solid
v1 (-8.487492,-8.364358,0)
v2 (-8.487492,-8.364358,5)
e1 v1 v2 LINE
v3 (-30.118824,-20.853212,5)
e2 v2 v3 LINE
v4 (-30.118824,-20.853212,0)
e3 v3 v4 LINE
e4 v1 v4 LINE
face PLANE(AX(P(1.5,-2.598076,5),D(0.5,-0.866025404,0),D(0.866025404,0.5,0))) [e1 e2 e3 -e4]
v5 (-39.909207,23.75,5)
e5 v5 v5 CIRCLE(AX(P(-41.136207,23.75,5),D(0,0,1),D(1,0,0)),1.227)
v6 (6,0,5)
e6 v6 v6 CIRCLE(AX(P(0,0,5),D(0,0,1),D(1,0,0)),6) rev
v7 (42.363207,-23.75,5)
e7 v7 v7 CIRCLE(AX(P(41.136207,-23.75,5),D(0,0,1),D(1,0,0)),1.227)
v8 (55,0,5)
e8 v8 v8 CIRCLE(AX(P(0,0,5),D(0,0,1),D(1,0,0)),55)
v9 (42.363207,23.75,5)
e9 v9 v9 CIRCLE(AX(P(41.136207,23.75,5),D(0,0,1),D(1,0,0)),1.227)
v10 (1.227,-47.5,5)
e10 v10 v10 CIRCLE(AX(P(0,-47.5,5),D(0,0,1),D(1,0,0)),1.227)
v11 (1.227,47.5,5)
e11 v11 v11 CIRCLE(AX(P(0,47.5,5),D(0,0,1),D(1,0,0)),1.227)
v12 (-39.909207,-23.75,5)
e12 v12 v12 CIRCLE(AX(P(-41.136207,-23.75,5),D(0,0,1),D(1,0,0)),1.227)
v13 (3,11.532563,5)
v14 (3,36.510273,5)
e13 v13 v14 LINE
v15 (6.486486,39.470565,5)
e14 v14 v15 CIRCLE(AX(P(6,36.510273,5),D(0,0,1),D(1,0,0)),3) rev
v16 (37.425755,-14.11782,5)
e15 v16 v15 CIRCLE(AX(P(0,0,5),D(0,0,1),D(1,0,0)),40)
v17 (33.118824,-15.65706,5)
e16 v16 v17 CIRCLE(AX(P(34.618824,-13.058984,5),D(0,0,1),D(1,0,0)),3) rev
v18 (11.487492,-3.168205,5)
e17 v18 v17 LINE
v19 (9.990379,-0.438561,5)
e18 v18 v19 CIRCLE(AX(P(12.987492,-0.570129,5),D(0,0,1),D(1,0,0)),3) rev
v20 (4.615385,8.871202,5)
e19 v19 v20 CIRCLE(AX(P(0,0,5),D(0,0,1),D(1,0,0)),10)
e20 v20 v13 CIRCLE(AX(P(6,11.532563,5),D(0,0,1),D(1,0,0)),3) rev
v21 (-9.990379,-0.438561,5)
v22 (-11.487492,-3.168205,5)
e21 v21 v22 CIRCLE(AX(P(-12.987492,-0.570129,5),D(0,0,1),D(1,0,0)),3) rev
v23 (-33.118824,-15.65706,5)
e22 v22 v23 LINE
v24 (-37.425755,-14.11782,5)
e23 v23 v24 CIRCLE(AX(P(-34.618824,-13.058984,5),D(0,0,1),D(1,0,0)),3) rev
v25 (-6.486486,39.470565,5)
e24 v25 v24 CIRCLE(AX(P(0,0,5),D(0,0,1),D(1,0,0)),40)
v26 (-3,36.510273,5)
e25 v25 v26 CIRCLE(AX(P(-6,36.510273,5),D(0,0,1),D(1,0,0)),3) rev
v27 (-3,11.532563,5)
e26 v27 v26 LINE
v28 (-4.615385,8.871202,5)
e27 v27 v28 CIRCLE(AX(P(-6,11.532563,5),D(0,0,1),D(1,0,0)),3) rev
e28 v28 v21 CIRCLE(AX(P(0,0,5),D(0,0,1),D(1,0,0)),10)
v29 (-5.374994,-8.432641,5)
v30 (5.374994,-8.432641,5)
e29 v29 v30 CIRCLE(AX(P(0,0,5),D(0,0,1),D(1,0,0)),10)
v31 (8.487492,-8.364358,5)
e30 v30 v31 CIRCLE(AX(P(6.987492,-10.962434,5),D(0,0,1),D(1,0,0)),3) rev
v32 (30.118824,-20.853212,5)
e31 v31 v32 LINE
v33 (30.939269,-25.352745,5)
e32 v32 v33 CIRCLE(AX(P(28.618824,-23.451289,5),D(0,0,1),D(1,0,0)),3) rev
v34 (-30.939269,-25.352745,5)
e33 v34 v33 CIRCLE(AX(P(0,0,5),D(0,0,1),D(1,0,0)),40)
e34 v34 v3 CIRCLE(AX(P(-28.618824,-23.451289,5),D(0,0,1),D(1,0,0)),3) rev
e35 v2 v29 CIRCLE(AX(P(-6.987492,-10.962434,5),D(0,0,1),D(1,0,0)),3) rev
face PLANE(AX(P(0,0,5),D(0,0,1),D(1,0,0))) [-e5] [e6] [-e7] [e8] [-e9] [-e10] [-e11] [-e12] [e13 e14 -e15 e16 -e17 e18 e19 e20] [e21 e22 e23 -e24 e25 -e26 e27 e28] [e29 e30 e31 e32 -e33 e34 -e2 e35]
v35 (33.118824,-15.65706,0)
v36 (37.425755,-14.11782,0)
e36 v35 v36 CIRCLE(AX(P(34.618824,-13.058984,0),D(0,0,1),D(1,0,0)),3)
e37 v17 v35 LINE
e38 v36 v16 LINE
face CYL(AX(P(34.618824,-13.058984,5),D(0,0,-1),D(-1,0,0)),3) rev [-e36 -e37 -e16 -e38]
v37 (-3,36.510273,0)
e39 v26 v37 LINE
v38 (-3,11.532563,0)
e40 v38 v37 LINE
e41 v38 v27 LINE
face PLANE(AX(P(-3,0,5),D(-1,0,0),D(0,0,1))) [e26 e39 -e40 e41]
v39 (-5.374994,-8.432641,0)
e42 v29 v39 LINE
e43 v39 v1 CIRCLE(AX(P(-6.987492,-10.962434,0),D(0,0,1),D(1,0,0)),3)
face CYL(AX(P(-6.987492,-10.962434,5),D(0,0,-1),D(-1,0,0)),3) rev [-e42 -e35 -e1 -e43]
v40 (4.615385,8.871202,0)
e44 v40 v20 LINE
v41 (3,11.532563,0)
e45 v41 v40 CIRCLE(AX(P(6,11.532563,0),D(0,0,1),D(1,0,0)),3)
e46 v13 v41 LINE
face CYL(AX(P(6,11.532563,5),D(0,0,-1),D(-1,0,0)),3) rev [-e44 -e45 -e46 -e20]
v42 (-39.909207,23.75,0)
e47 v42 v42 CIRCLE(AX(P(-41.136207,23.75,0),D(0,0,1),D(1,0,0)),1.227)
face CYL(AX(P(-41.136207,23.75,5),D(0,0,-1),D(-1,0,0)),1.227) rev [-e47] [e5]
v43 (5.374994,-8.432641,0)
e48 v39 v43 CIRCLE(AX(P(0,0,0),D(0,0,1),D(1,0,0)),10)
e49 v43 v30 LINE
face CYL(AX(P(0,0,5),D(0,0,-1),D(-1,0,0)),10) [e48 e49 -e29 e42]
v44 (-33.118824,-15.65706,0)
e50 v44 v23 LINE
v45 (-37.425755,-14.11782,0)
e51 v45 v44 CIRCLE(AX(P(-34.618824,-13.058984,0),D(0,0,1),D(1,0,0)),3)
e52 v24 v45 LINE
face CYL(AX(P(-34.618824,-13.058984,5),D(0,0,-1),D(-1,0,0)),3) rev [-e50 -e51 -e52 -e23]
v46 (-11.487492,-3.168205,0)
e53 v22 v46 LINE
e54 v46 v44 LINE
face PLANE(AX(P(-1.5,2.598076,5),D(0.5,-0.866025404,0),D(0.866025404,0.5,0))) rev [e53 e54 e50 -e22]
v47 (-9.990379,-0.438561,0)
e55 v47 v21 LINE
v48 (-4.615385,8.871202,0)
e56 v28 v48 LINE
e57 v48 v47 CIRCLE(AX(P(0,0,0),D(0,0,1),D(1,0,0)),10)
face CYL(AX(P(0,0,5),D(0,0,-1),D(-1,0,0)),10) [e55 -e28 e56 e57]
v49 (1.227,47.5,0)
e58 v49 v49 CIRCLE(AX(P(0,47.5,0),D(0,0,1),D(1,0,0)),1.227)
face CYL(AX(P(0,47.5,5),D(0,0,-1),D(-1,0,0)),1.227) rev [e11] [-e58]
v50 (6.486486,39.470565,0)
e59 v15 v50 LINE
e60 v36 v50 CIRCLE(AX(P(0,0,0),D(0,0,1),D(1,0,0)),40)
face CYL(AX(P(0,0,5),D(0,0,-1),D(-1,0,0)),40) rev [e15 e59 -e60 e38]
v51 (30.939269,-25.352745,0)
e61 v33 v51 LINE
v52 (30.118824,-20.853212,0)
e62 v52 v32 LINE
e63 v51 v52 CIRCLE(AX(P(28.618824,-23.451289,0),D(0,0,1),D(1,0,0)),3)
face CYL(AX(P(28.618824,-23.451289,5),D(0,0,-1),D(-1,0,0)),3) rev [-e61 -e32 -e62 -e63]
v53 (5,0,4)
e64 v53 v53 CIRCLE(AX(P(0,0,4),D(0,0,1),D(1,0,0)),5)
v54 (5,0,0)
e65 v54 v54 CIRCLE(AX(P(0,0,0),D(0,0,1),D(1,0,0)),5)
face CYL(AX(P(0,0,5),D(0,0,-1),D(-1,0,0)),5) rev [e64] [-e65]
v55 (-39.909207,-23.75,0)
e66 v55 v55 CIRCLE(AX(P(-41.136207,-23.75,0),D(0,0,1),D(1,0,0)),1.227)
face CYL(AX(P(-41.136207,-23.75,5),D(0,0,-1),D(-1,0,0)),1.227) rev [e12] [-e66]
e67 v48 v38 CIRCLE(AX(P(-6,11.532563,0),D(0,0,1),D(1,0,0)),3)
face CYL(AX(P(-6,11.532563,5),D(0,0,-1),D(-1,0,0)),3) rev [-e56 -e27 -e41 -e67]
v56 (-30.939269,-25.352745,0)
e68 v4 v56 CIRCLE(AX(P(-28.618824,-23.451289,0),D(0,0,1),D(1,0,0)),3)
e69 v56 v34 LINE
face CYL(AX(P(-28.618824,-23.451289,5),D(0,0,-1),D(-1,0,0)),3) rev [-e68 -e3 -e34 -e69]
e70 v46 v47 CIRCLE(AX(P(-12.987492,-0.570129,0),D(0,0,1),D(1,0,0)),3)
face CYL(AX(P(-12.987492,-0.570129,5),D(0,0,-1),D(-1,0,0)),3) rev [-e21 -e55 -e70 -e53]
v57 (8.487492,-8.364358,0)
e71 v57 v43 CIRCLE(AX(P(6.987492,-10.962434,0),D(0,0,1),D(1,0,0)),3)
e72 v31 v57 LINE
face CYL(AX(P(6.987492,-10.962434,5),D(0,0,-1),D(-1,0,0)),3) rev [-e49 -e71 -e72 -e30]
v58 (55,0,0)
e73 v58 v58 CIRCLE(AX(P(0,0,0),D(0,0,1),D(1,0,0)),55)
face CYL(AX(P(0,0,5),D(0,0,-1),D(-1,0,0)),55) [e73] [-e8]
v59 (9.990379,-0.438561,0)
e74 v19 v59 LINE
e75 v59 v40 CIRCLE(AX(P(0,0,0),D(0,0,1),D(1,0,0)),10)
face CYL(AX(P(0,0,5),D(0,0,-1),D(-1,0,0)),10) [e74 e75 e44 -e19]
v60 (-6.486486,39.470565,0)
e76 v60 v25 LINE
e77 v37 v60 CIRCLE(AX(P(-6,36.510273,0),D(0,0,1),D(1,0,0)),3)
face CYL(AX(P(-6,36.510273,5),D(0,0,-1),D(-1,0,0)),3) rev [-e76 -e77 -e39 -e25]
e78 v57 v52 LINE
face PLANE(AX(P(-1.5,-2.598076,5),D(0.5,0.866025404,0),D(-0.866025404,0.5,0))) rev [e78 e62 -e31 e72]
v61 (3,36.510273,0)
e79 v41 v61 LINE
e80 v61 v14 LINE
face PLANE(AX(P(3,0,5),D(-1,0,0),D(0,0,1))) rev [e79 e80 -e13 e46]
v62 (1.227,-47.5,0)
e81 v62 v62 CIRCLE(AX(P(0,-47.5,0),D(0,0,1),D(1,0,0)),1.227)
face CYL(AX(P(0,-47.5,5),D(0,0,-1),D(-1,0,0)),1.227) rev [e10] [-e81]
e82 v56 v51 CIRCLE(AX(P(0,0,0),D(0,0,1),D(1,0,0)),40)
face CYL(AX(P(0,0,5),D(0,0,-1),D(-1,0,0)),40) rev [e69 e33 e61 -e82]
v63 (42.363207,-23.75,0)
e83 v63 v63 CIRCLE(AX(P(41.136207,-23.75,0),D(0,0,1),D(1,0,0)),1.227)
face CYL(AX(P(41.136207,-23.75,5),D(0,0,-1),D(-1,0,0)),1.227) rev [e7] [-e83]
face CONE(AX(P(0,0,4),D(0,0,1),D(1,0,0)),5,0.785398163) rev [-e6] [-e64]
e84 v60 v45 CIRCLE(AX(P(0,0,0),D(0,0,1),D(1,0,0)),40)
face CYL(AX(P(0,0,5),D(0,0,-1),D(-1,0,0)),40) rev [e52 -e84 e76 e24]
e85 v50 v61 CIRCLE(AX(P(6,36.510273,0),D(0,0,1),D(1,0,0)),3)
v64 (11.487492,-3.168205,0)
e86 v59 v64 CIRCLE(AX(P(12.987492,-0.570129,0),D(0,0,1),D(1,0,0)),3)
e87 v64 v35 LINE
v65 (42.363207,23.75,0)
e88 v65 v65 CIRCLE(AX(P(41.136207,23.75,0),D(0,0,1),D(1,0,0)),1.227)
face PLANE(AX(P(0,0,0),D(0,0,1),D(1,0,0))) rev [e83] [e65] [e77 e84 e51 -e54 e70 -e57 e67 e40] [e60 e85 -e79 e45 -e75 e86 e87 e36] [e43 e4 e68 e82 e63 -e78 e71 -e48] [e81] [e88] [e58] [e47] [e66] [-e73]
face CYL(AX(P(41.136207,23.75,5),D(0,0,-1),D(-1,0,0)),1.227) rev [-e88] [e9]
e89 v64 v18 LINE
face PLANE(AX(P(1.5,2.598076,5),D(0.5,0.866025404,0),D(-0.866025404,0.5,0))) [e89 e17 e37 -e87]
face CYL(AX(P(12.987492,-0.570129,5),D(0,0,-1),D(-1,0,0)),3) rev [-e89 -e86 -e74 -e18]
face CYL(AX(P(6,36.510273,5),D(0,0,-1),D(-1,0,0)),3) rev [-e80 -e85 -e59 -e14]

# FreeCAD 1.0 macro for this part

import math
import FreeCAD as App
import Part
import Sketcher

V = App.Vector
Q = App.Units.Quantity


def edges_at(feature, points):
    """Names of the edges that pass closest to the given points."""
    edges = feature.Shape.Edges
    near = lambda p: min(range(len(edges)), key=lambda i: edges[i].distToShape(Part.Vertex(*p))[0])
    return sorted({f"Edge{near(p) + 1}" for p in points})

doc = App.newDocument("Part")
body = doc.addObject("PartDesign::Body", "Body")

sketch1 = body.newObject("Sketcher::SketchObject", "Sketch")
sketch1.AttachmentSupport = (doc.getObject("XY_Plane"), [""])
sketch1.MapMode = "FlatFace"
sketch1.addGeometry(Part.Circle(V(0, 0, 0), V(0, 0, 1), 55), False)
sketch1.addGeometry(Part.Circle(V(0, -47.5, 0), V(0, 0, 1), 1.2), False)
sketch1.addGeometry(Part.Circle(V(-41.1, -23.8, 0), V(0, 0, 1), 1.2), False)
sketch1.addGeometry(Part.ArcOfCircle(Part.Circle(V(0, 0, 0), V(0, 0, 1), 40), math.radians(-146), math.radians(-34)), False)
sketch1.addGeometry(Part.LineSegment(V(-33, -22.5, 0), V(-6.8, -7.4, 0)), False)
sketch1.addGeometry(Part.ArcOfCircle(Part.Circle(V(0, 0, 0), V(0, 0, 1), 10), math.radians(-133), math.radians(-47)), False)
sketch1.addGeometry(Part.LineSegment(V(6.8, -7.4, 0), V(33, -22.5, 0)), False)
sketch1.addGeometry(Part.Circle(V(41.1, -23.8, 0), V(0, 0, 1), 1.2), False)
sketch1.addGeometry(Part.LineSegment(V(-3, 39.9, 0), V(-3, 9.5, 0)), False)
sketch1.addGeometry(Part.ArcOfCircle(Part.Circle(V(0, 0, 0), V(0, 0, 1), 10), math.radians(107), math.radians(193)), False)
sketch1.addGeometry(Part.LineSegment(V(-9.8, -2.2, 0), V(-36, -17.3, 0)), False)
sketch1.addGeometry(Part.ArcOfCircle(Part.Circle(V(0, 0, 0), V(0, 0, 1), 40), math.radians(94), math.radians(206)), False)
sketch1.addGeometry(Part.Circle(V(-41.1, 23.8, 0), V(0, 0, 1), 1.2), False)
sketch1.addGeometry(Part.Circle(V(0, 47.5, 0), V(0, 0, 1), 1.2), False)
sketch1.addGeometry(Part.Circle(V(0, 0, 0), V(0, 0, 1), 5), False)
sketch1.addGeometry(Part.ArcOfCircle(Part.Circle(V(0, 0, 0), V(0, 0, 1), 40), math.radians(-26), math.radians(86)), False)
sketch1.addGeometry(Part.LineSegment(V(36, -17.3, 0), V(9.8, -2.2, 0)), False)
sketch1.addGeometry(Part.ArcOfCircle(Part.Circle(V(0, 0, 0), V(0, 0, 1), 10), math.radians(-13), math.radians(73)), False)
sketch1.addGeometry(Part.LineSegment(V(3, 9.5, 0), V(3, 39.9, 0)), False)
sketch1.addGeometry(Part.Circle(V(41.1, 23.8, 0), V(0, 0, 1), 1.2), False)
sketch1.addConstraint(Sketcher.Constraint("Coincident", 3, 1, 4, 1))
sketch1.addConstraint(Sketcher.Constraint("Coincident", 4, 2, 5, 1))
sketch1.addConstraint(Sketcher.Constraint("Coincident", 5, 2, 6, 1))
sketch1.addConstraint(Sketcher.Constraint("Coincident", 6, 2, 3, 2))
sketch1.addConstraint(Sketcher.Constraint("Coincident", 8, 2, 9, 1))
sketch1.addConstraint(Sketcher.Constraint("Coincident", 9, 2, 10, 1))
sketch1.addConstraint(Sketcher.Constraint("Coincident", 10, 2, 11, 2))
sketch1.addConstraint(Sketcher.Constraint("Coincident", 11, 1, 8, 1))
sketch1.addConstraint(Sketcher.Constraint("Coincident", 15, 1, 16, 1))
sketch1.addConstraint(Sketcher.Constraint("Coincident", 16, 2, 17, 1))
sketch1.addConstraint(Sketcher.Constraint("Coincident", 17, 2, 18, 1))
sketch1.addConstraint(Sketcher.Constraint("Coincident", 18, 2, 15, 2))
sketch1.addConstraint(Sketcher.Constraint("Vertical", 8))
sketch1.addConstraint(Sketcher.Constraint("Vertical", 18))
sketch1.addConstraint(Sketcher.Constraint("Coincident", 0, 3, -1, 1))
sketch1.addConstraint(Sketcher.Constraint("Coincident", 3, 3, -1, 1))
sketch1.addConstraint(Sketcher.Constraint("Coincident", 5, 3, -1, 1))
sketch1.addConstraint(Sketcher.Constraint("Coincident", 9, 3, -1, 1))
sketch1.addConstraint(Sketcher.Constraint("Coincident", 11, 3, -1, 1))
sketch1.addConstraint(Sketcher.Constraint("Coincident", 14, 3, -1, 1))
sketch1.addConstraint(Sketcher.Constraint("Coincident", 15, 3, -1, 1))
sketch1.addConstraint(Sketcher.Constraint("Coincident", 17, 3, -1, 1))
sketch1.addConstraint(Sketcher.Constraint("Equal", 1, 2))
sketch1.addConstraint(Sketcher.Constraint("Equal", 2, 7))
sketch1.addConstraint(Sketcher.Constraint("Equal", 5, 9))
sketch1.addConstraint(Sketcher.Constraint("Equal", 3, 11))
sketch1.addConstraint(Sketcher.Constraint("Equal", 7, 12))
sketch1.addConstraint(Sketcher.Constraint("Equal", 12, 13))
sketch1.addConstraint(Sketcher.Constraint("Equal", 11, 15))
sketch1.addConstraint(Sketcher.Constraint("Equal", 9, 17))
sketch1.addConstraint(Sketcher.Constraint("Equal", 13, 19))
sketch1.addConstraint(Sketcher.Constraint("Symmetric", 7, 3, 12, 3, -1, 1))
sketch1.addConstraint(Sketcher.Constraint("Symmetric", 1, 3, 13, 3, -1, 1))
sketch1.addConstraint(Sketcher.Constraint("Symmetric", 2, 3, 19, 3, -1, 1))
sketch1.addConstraint(Sketcher.Constraint("Symmetric", 2, 3, 7, 3, -2))
sketch1.addConstraint(Sketcher.Constraint("PointOnObject", 1, 3, -2))
sketch1.addConstraint(Sketcher.Constraint("Parallel", 4, 10))
sketch1.addConstraint(Sketcher.Constraint("Parallel", 6, 16))
sketch1.addConstraint(Sketcher.Constraint("Horizontal", 4, 2, 5, 2))
sketch1.addConstraint(Sketcher.Constraint("Horizontal", 3, 1, 6, 2))
sketch1.addConstraint(Sketcher.Constraint("Horizontal", 10, 2, 15, 1))
sketch1.addConstraint(Sketcher.Constraint("Horizontal", 8, 2, 17, 2))
sketch1.addConstraint(Sketcher.Constraint("Equal", 6, 10))
sketch1.addConstraint(Sketcher.Constraint("Diameter", 0, Q("110 mm")))
sketch1.addConstraint(Sketcher.Constraint("Diameter", 14, Q("10 mm")))
sketch1.addConstraint(Sketcher.Constraint("Radius", 3, Q("40 mm")))
sketch1.addConstraint(Sketcher.Constraint("Radius", 5, Q("10 mm")))
sketch1.addConstraint(Sketcher.Constraint("Angle", 4, Q("30 deg")))
sketch1.addConstraint(Sketcher.Constraint("Diameter", 1, Q("2.454 mm")))
sketch1.addConstraint(Sketcher.Constraint("DistanceX", 8, 2, -1, 1, Q("3 mm")))
sketch1.addConstraint(Sketcher.Constraint("DistanceX", 9, 2, 4, 2, Q("3 mm")))
sketch1.addConstraint(Sketcher.Constraint("DistanceY", 1, 3, -1, 1, Q("47.5 mm")))
sketch1.addConstraint(Sketcher.Constraint("DistanceY", 2, 3, 12, 3, Q("47.5 mm")))
sketch1.addConstraint(Sketcher.Constraint("DistanceX", 2, 3, -1, 1, Q("41.136207 mm")))
pad1 = body.newObject("PartDesign::Pad", "Pad")
pad1.Profile = sketch1
pad1.Length = 5
doc.recompute()

fillet = body.newObject("PartDesign::Fillet", "Fillet")
fillet.Base = (pad1, edges_at(pad1, [
    (-3, 39.887, 2.5),
    (-36.043, -17.346, 2.5),
    (-9.761, -2.172, 2.5),
    (-3, 9.539, 2.5),
    (33.043, -22.542, 2.5),
    (6.761, -7.368, 2.5),
    (-6.761, -7.368, 2.5),
    (-33.043, -22.542, 2.5),
    (3, 39.887, 2.5),
    (3, 9.539, 2.5),
    (9.761, -2.172, 2.5),
    (36.043, -17.346, 2.5),
]))
fillet.Radius = 3
doc.recompute()

chamfer = body.newObject("PartDesign::Chamfer", "Chamfer")
chamfer.Base = (fillet, edges_at(fillet, [(-5, 0, 5)]))
chamfer.Size = 1

doc.recompute()
